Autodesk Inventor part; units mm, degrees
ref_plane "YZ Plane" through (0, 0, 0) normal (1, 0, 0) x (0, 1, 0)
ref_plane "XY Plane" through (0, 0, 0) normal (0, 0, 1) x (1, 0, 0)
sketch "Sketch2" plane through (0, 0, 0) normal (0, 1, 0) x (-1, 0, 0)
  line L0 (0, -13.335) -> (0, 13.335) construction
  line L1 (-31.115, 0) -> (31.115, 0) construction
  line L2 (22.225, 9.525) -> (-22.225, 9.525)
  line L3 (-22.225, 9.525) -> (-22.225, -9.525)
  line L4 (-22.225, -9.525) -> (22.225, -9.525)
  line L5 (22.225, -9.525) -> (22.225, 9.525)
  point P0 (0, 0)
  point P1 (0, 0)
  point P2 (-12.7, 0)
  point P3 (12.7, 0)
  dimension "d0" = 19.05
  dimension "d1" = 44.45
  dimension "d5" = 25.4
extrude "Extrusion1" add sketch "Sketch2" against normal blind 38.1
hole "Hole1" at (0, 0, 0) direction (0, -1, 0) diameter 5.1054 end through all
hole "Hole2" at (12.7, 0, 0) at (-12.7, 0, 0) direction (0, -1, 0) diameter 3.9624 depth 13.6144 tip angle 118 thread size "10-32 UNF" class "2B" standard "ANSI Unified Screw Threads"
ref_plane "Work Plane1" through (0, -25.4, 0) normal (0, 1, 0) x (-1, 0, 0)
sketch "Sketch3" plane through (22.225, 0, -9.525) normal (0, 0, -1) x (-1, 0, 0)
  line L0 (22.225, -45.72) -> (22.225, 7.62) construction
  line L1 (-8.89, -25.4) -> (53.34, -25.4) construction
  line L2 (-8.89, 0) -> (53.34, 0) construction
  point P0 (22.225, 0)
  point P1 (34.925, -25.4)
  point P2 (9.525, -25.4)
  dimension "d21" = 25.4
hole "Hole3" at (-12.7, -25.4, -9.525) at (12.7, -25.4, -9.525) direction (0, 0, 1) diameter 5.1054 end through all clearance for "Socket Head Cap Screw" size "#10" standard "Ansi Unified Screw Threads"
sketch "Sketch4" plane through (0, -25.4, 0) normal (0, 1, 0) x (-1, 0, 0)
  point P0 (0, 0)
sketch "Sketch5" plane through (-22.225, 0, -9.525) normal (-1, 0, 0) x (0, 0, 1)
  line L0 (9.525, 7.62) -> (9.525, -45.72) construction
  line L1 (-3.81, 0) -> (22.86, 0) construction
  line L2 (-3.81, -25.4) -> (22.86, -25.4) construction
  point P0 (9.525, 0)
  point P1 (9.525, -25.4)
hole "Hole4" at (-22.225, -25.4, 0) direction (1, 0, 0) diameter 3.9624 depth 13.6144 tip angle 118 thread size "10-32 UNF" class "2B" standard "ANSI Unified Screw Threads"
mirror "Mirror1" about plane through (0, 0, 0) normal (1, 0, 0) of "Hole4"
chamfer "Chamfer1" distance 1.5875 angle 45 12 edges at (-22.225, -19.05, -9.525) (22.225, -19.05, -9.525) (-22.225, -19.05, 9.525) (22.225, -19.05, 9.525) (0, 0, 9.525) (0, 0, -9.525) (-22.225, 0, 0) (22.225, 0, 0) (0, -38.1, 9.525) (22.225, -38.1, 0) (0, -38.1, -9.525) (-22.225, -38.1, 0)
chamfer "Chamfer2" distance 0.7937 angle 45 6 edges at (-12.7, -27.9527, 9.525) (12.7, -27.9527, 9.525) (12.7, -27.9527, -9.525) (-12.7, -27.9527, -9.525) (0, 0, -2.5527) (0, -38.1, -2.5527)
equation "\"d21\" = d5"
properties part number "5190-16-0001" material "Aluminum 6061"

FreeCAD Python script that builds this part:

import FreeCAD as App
import Part
import Sketcher

V = App.Vector
Q = App.Units.Quantity


def edges_at(feature, points):
    """Names of the edges that pass closest to the given points."""
    edges = feature.Shape.Edges
    near = lambda p: min(range(len(edges)), key=lambda i: edges[i].distToShape(Part.Vertex(*p))[0])
    return sorted({f"Edge{near(p) + 1}" for p in points})


def add_polygon(sketch, points):
    """Adds a closed chain of lines whose ends are joined by coincident constraints."""
    first, n = sketch.GeometryCount, len(points)
    for a, b in zip(points, points[1:] + points[:1]):
        sketch.addGeometry(Part.LineSegment(App.Vector(*a, 0), App.Vector(*b, 0)), False)
    for i in range(n):
        sketch.addConstraint(Sketcher.Constraint("Coincident", first + i, 2, first + (i + 1) % n, 1))

doc = App.newDocument("Part")
body = doc.addObject("PartDesign::Body", "Body")

sketch1 = body.newObject("Sketcher::SketchObject", "Sketch")
sketch1.AttachmentSupport = (doc.getObject("XZ_Plane"), [""])
sketch1.MapMode = "FlatFace"
add_polygon(sketch1, [(-22.225, -9.525), (-22.225, 9.525), (22.225, 9.525), (22.225, -9.525)])
sketch1.addConstraint([
    Sketcher.Constraint("Vertical", 0),
    Sketcher.Constraint("Horizontal", 1),
    Sketcher.Constraint("Vertical", 2),
    Sketcher.Constraint("Horizontal", 3),
    Sketcher.Constraint("Symmetric", 0, 2, 2, 2, -1, 1),
    Sketcher.Constraint("DistanceX", 1, 1, 1, 2, Q("1.75 in")),
    Sketcher.Constraint("DistanceY", 0, 1, 0, 2, Q("0.75 in")),
])
pad1 = body.newObject("PartDesign::Pad", "Pad")
pad1.Profile = sketch1
pad1.Length = Q("1.5 in")

sketch2 = body.newObject("Sketcher::SketchObject", "Sketch001")
sketch2.AttachmentSupport = (doc.getObject("XZ_Plane"), [""])
sketch2.MapMode = "FlatFace"
sketch2.addGeometry(Part.Circle(V(0, 0, 0), V(0, 0, 1), 2.5527), False)
sketch2.addConstraint([
    Sketcher.Constraint("Coincident", 0, 3, -1, 1),
    Sketcher.Constraint("Diameter", 0, Q("0.201 in")),
])
doc.recompute()
hole = body.newObject("PartDesign::Hole", "Hole")
hole.Profile = sketch2
hole.ThreadType = "None"
hole.Diameter = Q("0.201 in")
hole.DepthType = "ThroughAll"
hole.Reversed = True

sketch3 = body.newObject("Sketcher::SketchObject", "Sketch002")
sketch3.AttachmentSupport = (doc.getObject("XZ_Plane"), [""])
sketch3.MapMode = "FlatFace"
sketch3.addGeometry([
    Part.Circle(V(12.7, 0, 0), V(0, 0, 1), 1.9812),
    Part.Circle(V(-12.7, 0, 0), V(0, 0, 1), 1.9812),
], False)
sketch3.addConstraint([
    Sketcher.Constraint("Equal", 0, 1),
    Sketcher.Constraint("Symmetric", 0, 3, 1, 3, -1, 1),
    Sketcher.Constraint("PointOnObject", 0, 3, -1),
    Sketcher.Constraint("Diameter", 0, Q("0.156 in")),
    Sketcher.Constraint("DistanceX", 1, 3, 0, 3, Q("1 in")),
])
doc.recompute()
hole2 = body.newObject("PartDesign::Hole", "Hole001")
hole2.Profile = sketch3
hole2.ThreadType = "None"
hole2.Diameter = Q("0.156 in")
hole2.DepthType = "Dimension"
hole2.Depth = Q("0.536 in")
hole2.DrillPoint = "Angled"
hole2.DrillPointAngle = 118
hole2.Reversed = True

sketch4 = body.newObject("Sketcher::SketchObject", "Sketch003")
sketch4.AttachmentSupport = (doc.getObject("XY_Plane"), [""])
sketch4.MapMode = "FlatFace"
sketch4.AttachmentOffset = App.Placement(V(0, 0, -0.375 * 25.4), App.Rotation())
sketch4.addGeometry([
    Part.Circle(V(-12.7, -25.4, 0), V(0, 0, 1), 2.5527),
    Part.Circle(V(12.7, -25.4, 0), V(0, 0, 1), 2.5527),
], False)
sketch4.addConstraint([
    Sketcher.Constraint("Equal", 0, 1),
    Sketcher.Constraint("Symmetric", 0, 3, 1, 3, -2),
    Sketcher.Constraint("Diameter", 0, Q("0.201 in")),
    Sketcher.Constraint("DistanceY", 0, 3, -1, 1, Q("1 in")),
    Sketcher.Constraint("DistanceX", 0, 3, 1, 3, Q("1 in")),
])
doc.recompute()
hole3 = body.newObject("PartDesign::Hole", "Hole002")
hole3.Profile = sketch4
hole3.ThreadType = "None"
hole3.Diameter = Q("0.201 in")
hole3.DepthType = "ThroughAll"
hole3.Reversed = True

sketch5 = body.newObject("Sketcher::SketchObject", "Sketch004")
sketch5.AttachmentSupport = (doc.getObject("YZ_Plane"), [""])
sketch5.MapMode = "FlatFace"
sketch5.AttachmentOffset = App.Placement(V(0, 0, -0.875 * 25.4), App.Rotation())
sketch5.addGeometry(Part.Circle(V(-25.4, 0, 0), V(0, 0, 1), 1.9812), False)
sketch5.addConstraint([
    Sketcher.Constraint("PointOnObject", 0, 3, -1),
    Sketcher.Constraint("Diameter", 0, Q("0.156 in")),
    Sketcher.Constraint("DistanceX", 0, 3, -1, 1, Q("1 in")),
])
doc.recompute()
hole4 = body.newObject("PartDesign::Hole", "Hole003")
hole4.Profile = sketch5
hole4.ThreadType = "None"
hole4.Diameter = Q("0.156 in")
hole4.DepthType = "Dimension"
hole4.Depth = Q("0.536 in")
hole4.DrillPoint = "Angled"
hole4.DrillPointAngle = 118
hole4.Reversed = True
doc.recompute()

mirrored = body.newObject("PartDesign::Mirrored", "Mirrored")
mirrored.Originals = [hole4]
mirrored.MirrorPlane = (doc.getObject("YZ_Plane"), [""])
body.Tip = mirrored
doc.recompute()

chamfer = body.newObject("PartDesign::Chamfer", "Chamfer")
chamfer.Base = (mirrored, edges_at(mirrored, [
    (-22.225, -19.05, -9.525),
    (22.225, -19.05, -9.525),
    (-22.225, -19.05, 9.525),
    (22.225, -19.05, 9.525),
    (0, 0, 9.525),
    (0, 0, -9.525),
    (-22.225, 0, 0),
    (22.225, 0, 0),
    (0, -38.1, 9.525),
    (22.225, -38.1, 0),
    (0, -38.1, -9.525),
    (-22.225, -38.1, 0),
]))
chamfer.Size = Q("0.0625 in")
doc.recompute()

chamfer2 = body.newObject("PartDesign::Chamfer", "Chamfer001")
chamfer2.Base = (chamfer, edges_at(chamfer, [
    (-12.7, -27.953, 9.525),
    (12.7, -27.953, 9.525),
    (12.7, -27.953, -9.525),
    (-12.7, -27.953, -9.525),
    (0, 0, -2.553),
    (0, -38.1, -2.553),
]))
chamfer2.Size = Q("0.031248 in")

doc.recompute()
